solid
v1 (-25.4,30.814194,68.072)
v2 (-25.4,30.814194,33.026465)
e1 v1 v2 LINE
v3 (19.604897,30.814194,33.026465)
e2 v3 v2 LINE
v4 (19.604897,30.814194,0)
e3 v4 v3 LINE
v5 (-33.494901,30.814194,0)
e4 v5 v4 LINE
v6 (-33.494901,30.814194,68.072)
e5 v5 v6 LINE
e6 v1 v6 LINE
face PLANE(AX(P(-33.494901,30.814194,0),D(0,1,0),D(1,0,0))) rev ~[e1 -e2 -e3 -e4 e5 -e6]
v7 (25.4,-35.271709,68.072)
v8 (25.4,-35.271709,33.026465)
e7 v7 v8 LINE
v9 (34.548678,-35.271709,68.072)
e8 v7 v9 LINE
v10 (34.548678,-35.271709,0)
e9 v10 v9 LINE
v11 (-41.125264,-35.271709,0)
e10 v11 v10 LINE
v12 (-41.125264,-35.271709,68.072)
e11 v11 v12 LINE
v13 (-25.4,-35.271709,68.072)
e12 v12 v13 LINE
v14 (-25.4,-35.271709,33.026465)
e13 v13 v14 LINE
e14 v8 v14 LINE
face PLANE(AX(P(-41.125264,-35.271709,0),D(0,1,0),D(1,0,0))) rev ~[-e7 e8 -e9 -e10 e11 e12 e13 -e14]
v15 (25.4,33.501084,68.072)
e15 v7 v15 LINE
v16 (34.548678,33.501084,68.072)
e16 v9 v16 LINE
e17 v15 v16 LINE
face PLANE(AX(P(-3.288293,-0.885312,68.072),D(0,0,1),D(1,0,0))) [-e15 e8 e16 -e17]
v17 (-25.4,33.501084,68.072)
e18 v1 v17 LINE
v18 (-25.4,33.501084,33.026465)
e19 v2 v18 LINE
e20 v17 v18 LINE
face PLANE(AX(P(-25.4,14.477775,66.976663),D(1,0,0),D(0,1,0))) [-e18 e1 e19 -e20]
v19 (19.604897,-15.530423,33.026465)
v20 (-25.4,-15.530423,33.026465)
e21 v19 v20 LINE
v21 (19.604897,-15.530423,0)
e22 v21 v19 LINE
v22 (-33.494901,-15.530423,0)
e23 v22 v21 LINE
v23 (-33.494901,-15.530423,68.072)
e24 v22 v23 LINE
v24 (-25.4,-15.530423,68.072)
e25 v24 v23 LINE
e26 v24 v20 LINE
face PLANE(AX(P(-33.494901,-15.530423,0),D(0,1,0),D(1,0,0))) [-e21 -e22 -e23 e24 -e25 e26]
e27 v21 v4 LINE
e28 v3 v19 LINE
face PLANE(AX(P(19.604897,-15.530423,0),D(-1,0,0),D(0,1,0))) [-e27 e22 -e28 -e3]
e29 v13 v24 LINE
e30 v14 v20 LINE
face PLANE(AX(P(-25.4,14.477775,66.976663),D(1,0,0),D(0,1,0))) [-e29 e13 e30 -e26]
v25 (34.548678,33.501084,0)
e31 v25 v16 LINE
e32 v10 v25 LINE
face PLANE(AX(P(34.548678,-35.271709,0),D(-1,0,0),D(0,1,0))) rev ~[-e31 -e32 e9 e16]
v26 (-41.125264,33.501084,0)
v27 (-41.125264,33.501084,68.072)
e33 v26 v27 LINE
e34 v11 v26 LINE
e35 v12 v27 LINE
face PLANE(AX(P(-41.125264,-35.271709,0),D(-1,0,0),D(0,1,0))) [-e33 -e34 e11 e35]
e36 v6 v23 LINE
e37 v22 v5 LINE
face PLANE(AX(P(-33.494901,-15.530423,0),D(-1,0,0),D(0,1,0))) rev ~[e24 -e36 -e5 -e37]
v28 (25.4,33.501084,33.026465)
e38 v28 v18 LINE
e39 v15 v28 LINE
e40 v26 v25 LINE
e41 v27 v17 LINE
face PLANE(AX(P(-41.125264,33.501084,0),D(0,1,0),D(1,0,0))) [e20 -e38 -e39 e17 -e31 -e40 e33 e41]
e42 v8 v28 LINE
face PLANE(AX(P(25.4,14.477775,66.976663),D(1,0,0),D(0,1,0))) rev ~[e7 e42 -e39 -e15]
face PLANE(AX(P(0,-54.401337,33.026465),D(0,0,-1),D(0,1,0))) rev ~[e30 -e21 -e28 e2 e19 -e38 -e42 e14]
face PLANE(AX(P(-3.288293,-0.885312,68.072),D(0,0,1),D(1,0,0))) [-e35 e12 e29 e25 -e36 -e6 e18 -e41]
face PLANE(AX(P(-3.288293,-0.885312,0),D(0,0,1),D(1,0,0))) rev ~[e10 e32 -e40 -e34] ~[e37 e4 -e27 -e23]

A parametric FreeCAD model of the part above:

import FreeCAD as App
import Part
import Sketcher
Q = App.Units.Quantity

doc = App.newDocument("Part")
body = doc.addObject("PartDesign::Body", "Body")

# Sketch on XY plane
sketch1 = body.newObject("Sketcher::SketchObject", "Sketch")
sketch1.AttachmentSupport = (doc.getObject("XY_Plane"), [""])
sketch1.MapMode = "FlatFace"
sketch1.addGeometry(Part.LineSegment(App.Vector(-41, 34, 0), App.Vector(-41, -35, 0)), False)
sketch1.addGeometry(Part.LineSegment(App.Vector(-41, -35, 0), App.Vector(35, -35, 0)), False)
sketch1.addGeometry(Part.LineSegment(App.Vector(35, -35, 0), App.Vector(35, 34, 0)), False)
sketch1.addGeometry(Part.LineSegment(App.Vector(35, 34, 0), App.Vector(-41, 34, 0)), False)
sketch1.addConstraint(Sketcher.Constraint("Coincident", 0, 2, 1, 1))
sketch1.addConstraint(Sketcher.Constraint("Coincident", 1, 2, 2, 1))
sketch1.addConstraint(Sketcher.Constraint("Coincident", 2, 2, 3, 1))
sketch1.addConstraint(Sketcher.Constraint("Coincident", 3, 2, 0, 1))
sketch1.addConstraint(Sketcher.Constraint("Vertical", 0))
sketch1.addConstraint(Sketcher.Constraint("Horizontal", 1))
sketch1.addConstraint(Sketcher.Constraint("Vertical", 2))
sketch1.addConstraint(Sketcher.Constraint("Horizontal", 3))
sketch1.addConstraint(Sketcher.Constraint("DistanceX", 1, 1, 1, 2, Q("75.673942 mm")))
sketch1.addConstraint(Sketcher.Constraint("DistanceY", 0, 2, 0, 1, Q("68.772793 mm")))
sketch1.addConstraint(Sketcher.Constraint("DistanceY", 0, 2, -1, 1, Q("35.271709 mm")))
sketch1.addConstraint(Sketcher.Constraint("DistanceX", -1, 1, 1, 2, Q("34.548678 mm")))
pad1 = body.newObject("PartDesign::Pad", "Pad")
pad1.Profile = sketch1
pad1.Length = Q("2.68 in")

# Sketch on XY plane
sketch2 = body.newObject("Sketcher::SketchObject", "Sketch001")
sketch2.AttachmentSupport = (doc.getObject("XY_Plane"), [""])
sketch2.MapMode = "FlatFace"
sketch2.addGeometry(Part.LineSegment(App.Vector(-33, 31, 0), App.Vector(-33, -16, 0)), False)
sketch2.addGeometry(Part.LineSegment(App.Vector(-33, -16, 0), App.Vector(20, -16, 0)), False)
sketch2.addGeometry(Part.LineSegment(App.Vector(20, -16, 0), App.Vector(20, 31, 0)), False)
sketch2.addGeometry(Part.LineSegment(App.Vector(20, 31, 0), App.Vector(-33, 31, 0)), False)
sketch2.addConstraint(Sketcher.Constraint("Coincident", 0, 2, 1, 1))
sketch2.addConstraint(Sketcher.Constraint("Coincident", 1, 2, 2, 1))
sketch2.addConstraint(Sketcher.Constraint("Coincident", 2, 2, 3, 1))
sketch2.addConstraint(Sketcher.Constraint("Coincident", 3, 2, 0, 1))
sketch2.addConstraint(Sketcher.Constraint("Vertical", 0))
sketch2.addConstraint(Sketcher.Constraint("Horizontal", 1))
sketch2.addConstraint(Sketcher.Constraint("Vertical", 2))
sketch2.addConstraint(Sketcher.Constraint("Horizontal", 3))
sketch2.addConstraint(Sketcher.Constraint("DistanceX", 0, 2, -1, 1, Q("33.494901 mm")))
sketch2.addConstraint(Sketcher.Constraint("DistanceX", 1, 1, 1, 2, Q("53.099798 mm")))
sketch2.addConstraint(Sketcher.Constraint("DistanceY", 0, 2, 0, 1, Q("46.344617 mm")))
sketch2.addConstraint(Sketcher.Constraint("DistanceY", 0, 2, -1, 1, Q("15.530423 mm")))
pocket1 = body.newObject("PartDesign::Pocket", "Pocket")
pocket1.Profile = sketch2
pocket1.Length = Q("4.13 in")
pocket1.Reversed = True

# Sketch on YZ plane
sketch3 = body.newObject("Sketcher::SketchObject", "Sketch002")
sketch3.AttachmentSupport = (doc.getObject("YZ_Plane"), [""])
sketch3.MapMode = "FlatFace"
sketch3.addGeometry(Part.LineSegment(App.Vector(-54, 101, 0), App.Vector(-54, 33, 0)), False)
sketch3.addGeometry(Part.LineSegment(App.Vector(-54, 33, 0), App.Vector(83, 33, 0)), False)
sketch3.addGeometry(Part.LineSegment(App.Vector(83, 33, 0), App.Vector(83, 101, 0)), False)
sketch3.addGeometry(Part.LineSegment(App.Vector(83, 101, 0), App.Vector(-54, 101, 0)), False)
sketch3.addConstraint(Sketcher.Constraint("Coincident", 0, 2, 1, 1))
sketch3.addConstraint(Sketcher.Constraint("Coincident", 1, 2, 2, 1))
sketch3.addConstraint(Sketcher.Constraint("Coincident", 2, 2, 3, 1))
sketch3.addConstraint(Sketcher.Constraint("Coincident", 3, 2, 0, 1))
sketch3.addConstraint(Sketcher.Constraint("Vertical", 0))
sketch3.addConstraint(Sketcher.Constraint("Horizontal", 1))
sketch3.addConstraint(Sketcher.Constraint("Vertical", 2))
sketch3.addConstraint(Sketcher.Constraint("Horizontal", 3))
sketch3.addConstraint(Sketcher.Constraint("DistanceX", 1, 1, 1, 2, Q("137.758225 mm")))
sketch3.addConstraint(Sketcher.Constraint("DistanceY", 0, 2, 0, 1, Q("67.900397 mm")))
sketch3.addConstraint(Sketcher.Constraint("DistanceY", -1, 1, 2, 2, Q("100.926862 mm")))
sketch3.addConstraint(Sketcher.Constraint("DistanceX", 0, 2, -1, 1, Q("54.401337 mm")))
pocket2 = body.newObject("PartDesign::Pocket", "Pocket001")
pocket2.Profile = sketch3
pocket2.Length = Q("2 in")
pocket2.Midplane = True

doc.recompute()
